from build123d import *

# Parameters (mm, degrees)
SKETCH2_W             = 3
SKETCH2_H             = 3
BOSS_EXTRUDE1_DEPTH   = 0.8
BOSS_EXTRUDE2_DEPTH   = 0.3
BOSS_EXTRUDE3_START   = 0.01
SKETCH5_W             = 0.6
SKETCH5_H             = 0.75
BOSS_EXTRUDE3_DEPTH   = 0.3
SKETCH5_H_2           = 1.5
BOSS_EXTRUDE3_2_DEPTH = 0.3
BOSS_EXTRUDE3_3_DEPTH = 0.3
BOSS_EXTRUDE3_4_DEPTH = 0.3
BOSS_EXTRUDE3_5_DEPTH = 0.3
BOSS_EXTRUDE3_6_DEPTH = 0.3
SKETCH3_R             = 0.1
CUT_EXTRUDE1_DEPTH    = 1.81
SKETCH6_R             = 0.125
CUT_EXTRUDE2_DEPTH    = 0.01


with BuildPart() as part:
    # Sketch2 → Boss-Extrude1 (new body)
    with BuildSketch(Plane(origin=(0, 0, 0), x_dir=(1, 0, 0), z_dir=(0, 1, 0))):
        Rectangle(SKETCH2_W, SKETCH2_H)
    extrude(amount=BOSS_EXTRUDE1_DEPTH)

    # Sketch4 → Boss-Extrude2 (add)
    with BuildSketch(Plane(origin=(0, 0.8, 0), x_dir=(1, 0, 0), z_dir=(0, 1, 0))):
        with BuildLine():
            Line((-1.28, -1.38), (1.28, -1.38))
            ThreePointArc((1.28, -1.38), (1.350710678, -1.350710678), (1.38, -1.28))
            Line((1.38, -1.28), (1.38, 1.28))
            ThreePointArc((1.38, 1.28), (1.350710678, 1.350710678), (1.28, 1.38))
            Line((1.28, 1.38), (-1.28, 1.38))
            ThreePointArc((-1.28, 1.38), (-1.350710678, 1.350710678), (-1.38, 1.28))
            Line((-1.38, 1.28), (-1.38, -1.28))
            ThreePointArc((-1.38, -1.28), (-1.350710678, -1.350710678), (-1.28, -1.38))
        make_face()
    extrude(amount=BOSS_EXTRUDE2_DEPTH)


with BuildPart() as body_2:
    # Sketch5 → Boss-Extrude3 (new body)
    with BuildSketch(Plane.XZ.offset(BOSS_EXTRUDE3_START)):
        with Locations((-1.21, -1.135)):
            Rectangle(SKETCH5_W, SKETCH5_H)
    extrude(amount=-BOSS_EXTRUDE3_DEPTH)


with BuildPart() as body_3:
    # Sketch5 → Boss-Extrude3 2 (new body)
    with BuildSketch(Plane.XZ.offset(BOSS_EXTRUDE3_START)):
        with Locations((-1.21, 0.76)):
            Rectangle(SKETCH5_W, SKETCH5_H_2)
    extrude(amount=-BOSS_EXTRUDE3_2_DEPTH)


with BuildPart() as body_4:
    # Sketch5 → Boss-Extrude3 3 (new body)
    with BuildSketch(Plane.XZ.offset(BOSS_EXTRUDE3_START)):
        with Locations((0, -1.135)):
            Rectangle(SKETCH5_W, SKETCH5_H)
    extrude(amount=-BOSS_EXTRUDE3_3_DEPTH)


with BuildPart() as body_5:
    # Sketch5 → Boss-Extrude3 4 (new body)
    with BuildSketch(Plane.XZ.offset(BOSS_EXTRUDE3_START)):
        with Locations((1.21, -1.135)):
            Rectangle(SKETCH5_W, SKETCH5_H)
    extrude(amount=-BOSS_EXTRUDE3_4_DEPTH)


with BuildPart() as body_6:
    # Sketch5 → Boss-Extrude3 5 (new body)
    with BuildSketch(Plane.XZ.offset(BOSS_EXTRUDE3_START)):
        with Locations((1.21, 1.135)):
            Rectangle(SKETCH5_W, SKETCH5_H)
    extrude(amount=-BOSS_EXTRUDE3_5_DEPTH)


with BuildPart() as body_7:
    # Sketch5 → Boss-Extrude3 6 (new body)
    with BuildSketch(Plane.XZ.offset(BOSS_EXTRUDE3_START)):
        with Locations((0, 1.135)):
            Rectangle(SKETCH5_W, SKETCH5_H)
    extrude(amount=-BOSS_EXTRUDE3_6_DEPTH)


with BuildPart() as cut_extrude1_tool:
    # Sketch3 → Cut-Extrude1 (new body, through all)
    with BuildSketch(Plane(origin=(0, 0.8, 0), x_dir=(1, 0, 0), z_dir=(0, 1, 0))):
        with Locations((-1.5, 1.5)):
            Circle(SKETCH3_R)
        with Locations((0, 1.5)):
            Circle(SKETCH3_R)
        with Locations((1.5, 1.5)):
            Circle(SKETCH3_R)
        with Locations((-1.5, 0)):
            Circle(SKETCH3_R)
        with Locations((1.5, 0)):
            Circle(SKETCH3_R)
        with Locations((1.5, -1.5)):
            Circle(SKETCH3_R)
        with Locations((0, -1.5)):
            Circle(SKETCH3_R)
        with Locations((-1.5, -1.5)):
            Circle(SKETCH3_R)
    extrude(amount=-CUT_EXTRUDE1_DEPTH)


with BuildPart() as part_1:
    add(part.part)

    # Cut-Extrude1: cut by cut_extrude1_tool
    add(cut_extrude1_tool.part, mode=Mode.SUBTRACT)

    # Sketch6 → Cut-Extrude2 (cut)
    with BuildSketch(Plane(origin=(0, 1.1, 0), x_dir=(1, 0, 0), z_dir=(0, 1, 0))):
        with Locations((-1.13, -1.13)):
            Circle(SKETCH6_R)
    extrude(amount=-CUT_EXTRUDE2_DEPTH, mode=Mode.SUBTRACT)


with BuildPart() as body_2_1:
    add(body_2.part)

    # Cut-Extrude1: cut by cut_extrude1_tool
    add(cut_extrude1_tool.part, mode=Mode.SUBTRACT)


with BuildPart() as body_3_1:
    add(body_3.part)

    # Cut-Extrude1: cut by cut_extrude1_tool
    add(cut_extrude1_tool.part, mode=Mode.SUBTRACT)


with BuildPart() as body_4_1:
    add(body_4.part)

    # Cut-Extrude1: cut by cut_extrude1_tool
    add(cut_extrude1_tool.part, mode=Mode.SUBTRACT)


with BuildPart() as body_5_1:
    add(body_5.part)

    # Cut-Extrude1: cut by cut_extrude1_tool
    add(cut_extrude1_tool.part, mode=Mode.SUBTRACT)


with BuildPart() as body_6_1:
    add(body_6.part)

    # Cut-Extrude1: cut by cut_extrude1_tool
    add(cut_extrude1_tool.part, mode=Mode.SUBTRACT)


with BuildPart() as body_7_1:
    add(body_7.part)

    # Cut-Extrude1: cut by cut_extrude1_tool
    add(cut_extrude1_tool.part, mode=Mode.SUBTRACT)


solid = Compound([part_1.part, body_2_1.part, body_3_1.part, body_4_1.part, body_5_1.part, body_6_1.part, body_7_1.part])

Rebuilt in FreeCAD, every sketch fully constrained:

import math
import FreeCAD as App
import Part
import Sketcher

V = App.Vector
Q = App.Units.Quantity

doc = App.newDocument("Part")
body = doc.addObject("PartDesign::Body", "Body")

sketch1 = body.newObject("Sketcher::SketchObject", "Sketch")
sketch1.AttachmentSupport = (doc.getObject("XZ_Plane"), [""])
sketch1.MapMode = "FlatFace"
sketch1.addGeometry(Part.LineSegment(V(-1.5, -1.5, 0), V(-1.5, 1.5, 0)), False)
sketch1.addGeometry(Part.LineSegment(V(-1.5, 1.5, 0), V(1.5, 1.5, 0)), False)
sketch1.addGeometry(Part.LineSegment(V(1.5, 1.5, 0), V(1.5, -1.5, 0)), False)
sketch1.addGeometry(Part.LineSegment(V(1.5, -1.5, 0), V(-1.5, -1.5, 0)), False)
sketch1.addConstraint(Sketcher.Constraint("Coincident", 0, 2, 1, 1))
sketch1.addConstraint(Sketcher.Constraint("Coincident", 1, 2, 2, 1))
sketch1.addConstraint(Sketcher.Constraint("Coincident", 2, 2, 3, 1))
sketch1.addConstraint(Sketcher.Constraint("Coincident", 3, 2, 0, 1))
sketch1.addConstraint(Sketcher.Constraint("Vertical", 0))
sketch1.addConstraint(Sketcher.Constraint("Horizontal", 1))
sketch1.addConstraint(Sketcher.Constraint("Vertical", 2))
sketch1.addConstraint(Sketcher.Constraint("Horizontal", 3))
sketch1.addConstraint(Sketcher.Constraint("Symmetric", 0, 2, 2, 2, -1, 1))
sketch1.addConstraint(Sketcher.Constraint("Equal", 3, 0))
sketch1.addConstraint(Sketcher.Constraint("DistanceX", 1, 1, 1, 2, Q("3 mm")))
pad1 = body.newObject("PartDesign::Pad", "Pad")
pad1.Profile = sketch1
pad1.Length = 0.8
pad1.Reversed = True

sketch2 = body.newObject("Sketcher::SketchObject", "Sketch001")
sketch2.AttachmentSupport = (doc.getObject("XZ_Plane"), [""])
sketch2.MapMode = "FlatFace"
sketch2.AttachmentOffset = App.Placement(V(0, 0, -0.8), App.Rotation())
sketch2.addGeometry(Part.LineSegment(V(-1.28, 1.38, 0), V(1.28, 1.38, 0)), False)
sketch2.addGeometry(Part.ArcOfCircle(Part.Circle(V(1.28, 1.28, 0), V(0, 0, 1), 0.1), math.radians(0), math.radians(90)), False)
sketch2.addGeometry(Part.LineSegment(V(1.38, 1.28, 0), V(1.38, -1.28, 0)), False)
sketch2.addGeometry(Part.ArcOfCircle(Part.Circle(V(1.28, -1.28, 0), V(0, 0, 1), 0.1), math.radians(-90), math.radians(0)), False)
sketch2.addGeometry(Part.LineSegment(V(1.28, -1.38, 0), V(-1.28, -1.38, 0)), False)
sketch2.addGeometry(Part.ArcOfCircle(Part.Circle(V(-1.28, -1.28, 0), V(0, 0, 1), 0.1), math.radians(180), math.radians(270)), False)
sketch2.addGeometry(Part.LineSegment(V(-1.38, -1.28, 0), V(-1.38, 1.28, 0)), False)
sketch2.addGeometry(Part.ArcOfCircle(Part.Circle(V(-1.28, 1.28, 0), V(0, 0, 1), 0.1), math.radians(90), math.radians(180)), False)
sketch2.addConstraint(Sketcher.Constraint("Tangent", 0, 2, 1, 2))
sketch2.addConstraint(Sketcher.Constraint("Tangent", 1, 1, 2, 1))
sketch2.addConstraint(Sketcher.Constraint("Tangent", 2, 2, 3, 2))
sketch2.addConstraint(Sketcher.Constraint("Tangent", 3, 1, 4, 1))
sketch2.addConstraint(Sketcher.Constraint("Tangent", 4, 2, 5, 2))
sketch2.addConstraint(Sketcher.Constraint("Tangent", 5, 1, 6, 1))
sketch2.addConstraint(Sketcher.Constraint("Tangent", 6, 2, 7, 2))
sketch2.addConstraint(Sketcher.Constraint("Tangent", 7, 1, 0, 1))
sketch2.addConstraint(Sketcher.Constraint("Horizontal", 0))
sketch2.addConstraint(Sketcher.Constraint("Vertical", 2))
sketch2.addConstraint(Sketcher.Constraint("Horizontal", 4))
sketch2.addConstraint(Sketcher.Constraint("Vertical", 6))
sketch2.addConstraint(Sketcher.Constraint("Equal", 1, 3))
sketch2.addConstraint(Sketcher.Constraint("Equal", 3, 5))
sketch2.addConstraint(Sketcher.Constraint("Equal", 5, 7))
sketch2.addConstraint(Sketcher.Constraint("Symmetric", 1, 3, 5, 3, -1, 1))
sketch2.addConstraint(Sketcher.Constraint("Equal", 4, 2))
sketch2.addConstraint(Sketcher.Constraint("Radius", 1, Q("0.1 mm")))
sketch2.addConstraint(Sketcher.Constraint("DistanceX", 0, 1, 0, 2, Q("2.56 mm")))
pad2 = body.newObject("PartDesign::Pad", "Pad001")
pad2.Profile = sketch2
pad2.Length = 0.3
pad2.Reversed = True
body2 = doc.addObject("PartDesign::Body", "Body001")

sketch3 = body2.newObject("Sketcher::SketchObject", "Sketch002")
sketch3.AttachmentSupport = (doc.getObject("XZ_Plane001"), [""])
sketch3.MapMode = "FlatFace"
sketch3.AttachmentOffset = App.Placement(V(0, 0, 0.01), App.Rotation())
sketch3.addGeometry(Part.LineSegment(V(-1.5, -0.8, 0), V(-1.5, -1.5, 0)), False)
sketch3.addGeometry(Part.LineSegment(V(-1.5, -1.5, 0), V(-0.9, -1.5, 0)), False)
sketch3.addGeometry(Part.LineSegment(V(-0.9, -1.5, 0), V(-0.9, -0.8, 0)), False)
sketch3.addGeometry(Part.LineSegment(V(-0.9, -0.8, 0), V(-1.5, -0.8, 0)), False)
sketch3.addConstraint(Sketcher.Constraint("Coincident", 0, 2, 1, 1))
sketch3.addConstraint(Sketcher.Constraint("Coincident", 1, 2, 2, 1))
sketch3.addConstraint(Sketcher.Constraint("Coincident", 2, 2, 3, 1))
sketch3.addConstraint(Sketcher.Constraint("Coincident", 3, 2, 0, 1))
sketch3.addConstraint(Sketcher.Constraint("Vertical", 0))
sketch3.addConstraint(Sketcher.Constraint("Horizontal", 1))
sketch3.addConstraint(Sketcher.Constraint("Vertical", 2))
sketch3.addConstraint(Sketcher.Constraint("Horizontal", 3))
sketch3.addConstraint(Sketcher.Constraint("DistanceX", 1, 1, 1, 2, Q("0.6 mm")))
sketch3.addConstraint(Sketcher.Constraint("DistanceY", 0, 2, 0, 1, Q("0.75 mm")))
sketch3.addConstraint(Sketcher.Constraint("DistanceX", 0, 2, -1, 1, Q("1.51 mm")))
sketch3.addConstraint(Sketcher.Constraint("DistanceY", 0, 2, -1, 1, Q("1.51 mm")))
pad3 = body2.newObject("PartDesign::Pad", "Pad002")
pad3.Profile = sketch3
pad3.Length = 0.3
pad3.Reversed = True
body3 = doc.addObject("PartDesign::Body", "Body002")

sketch4 = body3.newObject("Sketcher::SketchObject", "Sketch003")
sketch4.AttachmentSupport = (doc.getObject("XZ_Plane002"), [""])
sketch4.MapMode = "FlatFace"
sketch4.AttachmentOffset = App.Placement(V(0, 0, 0.01), App.Rotation())
sketch4.addGeometry(Part.LineSegment(V(-1.5, 1.5, 0), V(-1.5, 0, 0)), False)
sketch4.addGeometry(Part.LineSegment(V(-1.5, 0, 0), V(-0.9, 0, 0)), False)
sketch4.addGeometry(Part.LineSegment(V(-0.9, 0, 0), V(-0.9, 1.5, 0)), False)
sketch4.addGeometry(Part.LineSegment(V(-0.9, 1.5, 0), V(-1.5, 1.5, 0)), False)
sketch4.addConstraint(Sketcher.Constraint("Coincident", 0, 2, 1, 1))
sketch4.addConstraint(Sketcher.Constraint("Coincident", 1, 2, 2, 1))
sketch4.addConstraint(Sketcher.Constraint("Coincident", 2, 2, 3, 1))
sketch4.addConstraint(Sketcher.Constraint("Coincident", 3, 2, 0, 1))
sketch4.addConstraint(Sketcher.Constraint("Vertical", 0))
sketch4.addConstraint(Sketcher.Constraint("Horizontal", 1))
sketch4.addConstraint(Sketcher.Constraint("Vertical", 2))
sketch4.addConstraint(Sketcher.Constraint("Horizontal", 3))
sketch4.addConstraint(Sketcher.Constraint("DistanceX", 1, 1, 1, 2, Q("0.6 mm")))
sketch4.addConstraint(Sketcher.Constraint("DistanceY", 0, 2, 0, 1, Q("1.5 mm")))
sketch4.addConstraint(Sketcher.Constraint("DistanceX", 0, 2, -1, 1, Q("1.51 mm")))
sketch4.addConstraint(Sketcher.Constraint("DistanceY", -1, 1, 0, 2, Q("0.01 mm")))
pad4 = body3.newObject("PartDesign::Pad", "Pad003")
pad4.Profile = sketch4
pad4.Length = 0.3
pad4.Reversed = True
body4 = doc.addObject("PartDesign::Body", "Body003")

sketch5 = body4.newObject("Sketcher::SketchObject", "Sketch004")
sketch5.AttachmentSupport = (doc.getObject("XZ_Plane003"), [""])
sketch5.MapMode = "FlatFace"
sketch5.AttachmentOffset = App.Placement(V(0, 0, 0.01), App.Rotation())
sketch5.addGeometry(Part.LineSegment(V(-0.3, -0.8, 0), V(-0.3, -1.5, 0)), False)
sketch5.addGeometry(Part.LineSegment(V(-0.3, -1.5, 0), V(0.3, -1.5, 0)), False)
sketch5.addGeometry(Part.LineSegment(V(0.3, -1.5, 0), V(0.3, -0.8, 0)), False)
sketch5.addGeometry(Part.LineSegment(V(0.3, -0.8, 0), V(-0.3, -0.8, 0)), False)
sketch5.addConstraint(Sketcher.Constraint("Coincident", 0, 2, 1, 1))
sketch5.addConstraint(Sketcher.Constraint("Coincident", 1, 2, 2, 1))
sketch5.addConstraint(Sketcher.Constraint("Coincident", 2, 2, 3, 1))
sketch5.addConstraint(Sketcher.Constraint("Coincident", 3, 2, 0, 1))
sketch5.addConstraint(Sketcher.Constraint("Vertical", 0))
sketch5.addConstraint(Sketcher.Constraint("Horizontal", 1))
sketch5.addConstraint(Sketcher.Constraint("Vertical", 2))
sketch5.addConstraint(Sketcher.Constraint("Horizontal", 3))
sketch5.addConstraint(Sketcher.Constraint("DistanceX", 1, 1, 1, 2, Q("0.6 mm")))
sketch5.addConstraint(Sketcher.Constraint("DistanceY", 0, 2, 0, 1, Q("0.75 mm")))
sketch5.addConstraint(Sketcher.Constraint("DistanceX", 0, 2, -1, 1, Q("0.3 mm")))
sketch5.addConstraint(Sketcher.Constraint("DistanceY", 0, 2, -1, 1, Q("1.51 mm")))
pad5 = body4.newObject("PartDesign::Pad", "Pad004")
pad5.Profile = sketch5
pad5.Length = 0.3
pad5.Reversed = True
body5 = doc.addObject("PartDesign::Body", "Body004")

sketch6 = body5.newObject("Sketcher::SketchObject", "Sketch005")
sketch6.AttachmentSupport = (doc.getObject("XZ_Plane004"), [""])
sketch6.MapMode = "FlatFace"
sketch6.AttachmentOffset = App.Placement(V(0, 0, 0.01), App.Rotation())
sketch6.addGeometry(Part.LineSegment(V(0.9, -0.8, 0), V(0.9, -1.5, 0)), False)
sketch6.addGeometry(Part.LineSegment(V(0.9, -1.5, 0), V(1.5, -1.5, 0)), False)
sketch6.addGeometry(Part.LineSegment(V(1.5, -1.5, 0), V(1.5, -0.8, 0)), False)
sketch6.addGeometry(Part.LineSegment(V(1.5, -0.8, 0), V(0.9, -0.8, 0)), False)
sketch6.addConstraint(Sketcher.Constraint("Coincident", 0, 2, 1, 1))
sketch6.addConstraint(Sketcher.Constraint("Coincident", 1, 2, 2, 1))
sketch6.addConstraint(Sketcher.Constraint("Coincident", 2, 2, 3, 1))
sketch6.addConstraint(Sketcher.Constraint("Coincident", 3, 2, 0, 1))
sketch6.addConstraint(Sketcher.Constraint("Vertical", 0))
sketch6.addConstraint(Sketcher.Constraint("Horizontal", 1))
sketch6.addConstraint(Sketcher.Constraint("Vertical", 2))
sketch6.addConstraint(Sketcher.Constraint("Horizontal", 3))
sketch6.addConstraint(Sketcher.Constraint("DistanceX", 1, 1, 1, 2, Q("0.6 mm")))
sketch6.addConstraint(Sketcher.Constraint("DistanceY", 0, 2, 0, 1, Q("0.75 mm")))
sketch6.addConstraint(Sketcher.Constraint("DistanceX", -1, 1, 0, 2, Q("0.91 mm")))
sketch6.addConstraint(Sketcher.Constraint("DistanceY", 0, 2, -1, 1, Q("1.51 mm")))
pad6 = body5.newObject("PartDesign::Pad", "Pad005")
pad6.Profile = sketch6
pad6.Length = 0.3
pad6.Reversed = True
body6 = doc.addObject("PartDesign::Body", "Body005")

sketch7 = body6.newObject("Sketcher::SketchObject", "Sketch006")
sketch7.AttachmentSupport = (doc.getObject("XZ_Plane005"), [""])
sketch7.MapMode = "FlatFace"
sketch7.AttachmentOffset = App.Placement(V(0, 0, 0.01), App.Rotation())
sketch7.addGeometry(Part.LineSegment(V(0.9, 1.5, 0), V(0.9, 0.8, 0)), False)
sketch7.addGeometry(Part.LineSegment(V(0.9, 0.8, 0), V(1.5, 0.8, 0)), False)
sketch7.addGeometry(Part.LineSegment(V(1.5, 0.8, 0), V(1.5, 1.5, 0)), False)
sketch7.addGeometry(Part.LineSegment(V(1.5, 1.5, 0), V(0.9, 1.5, 0)), False)
sketch7.addConstraint(Sketcher.Constraint("Coincident", 0, 2, 1, 1))
sketch7.addConstraint(Sketcher.Constraint("Coincident", 1, 2, 2, 1))
sketch7.addConstraint(Sketcher.Constraint("Coincident", 2, 2, 3, 1))
sketch7.addConstraint(Sketcher.Constraint("Coincident", 3, 2, 0, 1))
sketch7.addConstraint(Sketcher.Constraint("Vertical", 0))
sketch7.addConstraint(Sketcher.Constraint("Horizontal", 1))
sketch7.addConstraint(Sketcher.Constraint("Vertical", 2))
sketch7.addConstraint(Sketcher.Constraint("Horizontal", 3))
sketch7.addConstraint(Sketcher.Constraint("DistanceX", 1, 1, 1, 2, Q("0.6 mm")))
sketch7.addConstraint(Sketcher.Constraint("DistanceY", 0, 2, 0, 1, Q("0.75 mm")))
sketch7.addConstraint(Sketcher.Constraint("DistanceX", -1, 1, 0, 2, Q("0.91 mm")))
sketch7.addConstraint(Sketcher.Constraint("DistanceY", -1, 1, 0, 2, Q("0.76 mm")))
pad7 = body6.newObject("PartDesign::Pad", "Pad006")
pad7.Profile = sketch7
pad7.Length = 0.3
pad7.Reversed = True
body7 = doc.addObject("PartDesign::Body", "Body006")

sketch8 = body7.newObject("Sketcher::SketchObject", "Sketch007")
sketch8.AttachmentSupport = (doc.getObject("XZ_Plane006"), [""])
sketch8.MapMode = "FlatFace"
sketch8.AttachmentOffset = App.Placement(V(0, 0, 0.01), App.Rotation())
sketch8.addGeometry(Part.LineSegment(V(-0.3, 1.5, 0), V(-0.3, 0.8, 0)), False)
sketch8.addGeometry(Part.LineSegment(V(-0.3, 0.8, 0), V(0.3, 0.8, 0)), False)
sketch8.addGeometry(Part.LineSegment(V(0.3, 0.8, 0), V(0.3, 1.5, 0)), False)
sketch8.addGeometry(Part.LineSegment(V(0.3, 1.5, 0), V(-0.3, 1.5, 0)), False)
sketch8.addConstraint(Sketcher.Constraint("Coincident", 0, 2, 1, 1))
sketch8.addConstraint(Sketcher.Constraint("Coincident", 1, 2, 2, 1))
sketch8.addConstraint(Sketcher.Constraint("Coincident", 2, 2, 3, 1))
sketch8.addConstraint(Sketcher.Constraint("Coincident", 3, 2, 0, 1))
sketch8.addConstraint(Sketcher.Constraint("Vertical", 0))
sketch8.addConstraint(Sketcher.Constraint("Horizontal", 1))
sketch8.addConstraint(Sketcher.Constraint("Vertical", 2))
sketch8.addConstraint(Sketcher.Constraint("Horizontal", 3))
sketch8.addConstraint(Sketcher.Constraint("DistanceX", 1, 1, 1, 2, Q("0.6 mm")))
sketch8.addConstraint(Sketcher.Constraint("DistanceY", 0, 2, 0, 1, Q("0.75 mm")))
sketch8.addConstraint(Sketcher.Constraint("DistanceX", 0, 2, -1, 1, Q("0.3 mm")))
sketch8.addConstraint(Sketcher.Constraint("DistanceY", -1, 1, 0, 2, Q("0.76 mm")))
pad8 = body7.newObject("PartDesign::Pad", "Pad007")
pad8.Profile = sketch8
pad8.Length = 0.3
pad8.Reversed = True
body8 = doc.addObject("PartDesign::Body", "Body007")
body8.AllowCompound = True

sketch9 = body8.newObject("Sketcher::SketchObject", "Sketch008")
sketch9.AttachmentSupport = (doc.getObject("XZ_Plane007"), [""])
sketch9.MapMode = "FlatFace"
sketch9.AttachmentOffset = App.Placement(V(0, 0, -0.8), App.Rotation())
sketch9.addGeometry(Part.Circle(V(-1.5, -1.5, 0), V(0, 0, 1), 0.1), False)
sketch9.addGeometry(Part.Circle(V(0, -1.5, 0), V(0, 0, 1), 0.1), False)
sketch9.addGeometry(Part.Circle(V(1.5, -1.5, 0), V(0, 0, 1), 0.1), False)
sketch9.addGeometry(Part.Circle(V(-1.5, 0, 0), V(0, 0, 1), 0.1), False)
sketch9.addGeometry(Part.Circle(V(1.5, 0, 0), V(0, 0, 1), 0.1), False)
sketch9.addGeometry(Part.Circle(V(1.5, 1.5, 0), V(0, 0, 1), 0.1), False)
sketch9.addGeometry(Part.Circle(V(0, 1.5, 0), V(0, 0, 1), 0.1), False)
sketch9.addGeometry(Part.Circle(V(-1.5, 1.5, 0), V(0, 0, 1), 0.1), False)
sketch9.addConstraint(Sketcher.Constraint("Equal", 0, 1))
sketch9.addConstraint(Sketcher.Constraint("Equal", 1, 2))
sketch9.addConstraint(Sketcher.Constraint("Equal", 2, 3))
sketch9.addConstraint(Sketcher.Constraint("Equal", 3, 4))
sketch9.addConstraint(Sketcher.Constraint("Equal", 4, 5))
sketch9.addConstraint(Sketcher.Constraint("Equal", 5, 6))
sketch9.addConstraint(Sketcher.Constraint("Equal", 6, 7))
sketch9.addConstraint(Sketcher.Constraint("Symmetric", 3, 3, 4, 3, -1, 1))
sketch9.addConstraint(Sketcher.Constraint("Symmetric", 0, 3, 5, 3, -1, 1))
sketch9.addConstraint(Sketcher.Constraint("Symmetric", 1, 3, 6, 3, -1, 1))
sketch9.addConstraint(Sketcher.Constraint("Symmetric", 2, 3, 7, 3, -1, 1))
sketch9.addConstraint(Sketcher.Constraint("Symmetric", 0, 3, 2, 3, -2))
sketch9.addConstraint(Sketcher.Constraint("PointOnObject", 1, 3, -2))
sketch9.addConstraint(Sketcher.Constraint("PointOnObject", 3, 3, -1))
sketch9.addConstraint(Sketcher.Constraint("Horizontal", 0, 3, 1, 3))
sketch9.addConstraint(Sketcher.Constraint("Vertical", 0, 3, 3, 3))
sketch9.addConstraint(Sketcher.Constraint("Diameter", 0, Q("0.2 mm")))
sketch9.addConstraint(Sketcher.Constraint("DistanceX", 0, 3, 2, 3, Q("3 mm")))
sketch9.addConstraint(Sketcher.Constraint("DistanceY", 2, 3, 5, 3, Q("3 mm")))
pad9 = body8.newObject("PartDesign::Pad", "Pad008")
pad9.Profile = sketch9
pad9.Length = 1.81
doc.recompute()

body9 = doc.addObject("PartDesign::Body", "Body008")
body9.BaseFeature = body8
boolean = body.newObject("PartDesign::Boolean", "Boolean")
boolean.Type = "Cut"
boolean.addObjects([body9])
doc.recompute()

sketch10 = body.newObject("Sketcher::SketchObject", "Sketch009")
sketch10.AttachmentSupport = (doc.getObject("XZ_Plane"), [""])
sketch10.MapMode = "FlatFace"
sketch10.AttachmentOffset = App.Placement(V(0, 0, -1.1), App.Rotation())
sketch10.addGeometry(Part.Circle(V(-1.13, 1.13, 0), V(0, 0, 1), 0.12), False)
sketch10.addConstraint(Sketcher.Constraint("Diameter", 0, Q("0.25 mm")))
sketch10.addConstraint(Sketcher.Constraint("DistanceX", 0, 3, -1, 1, Q("1.13 mm")))
sketch10.addConstraint(Sketcher.Constraint("DistanceY", -1, 1, 0, 3, Q("1.13 mm")))
pocket1 = body.newObject("PartDesign::Pocket", "Pocket")
pocket1.Profile = sketch10
pocket1.Length = 0.01
pocket1.Reversed = True
doc.recompute()

body10 = doc.addObject("PartDesign::Body", "Body009")
body10.BaseFeature = body8
boolean2 = body2.newObject("PartDesign::Boolean", "Boolean001")
boolean2.Type = "Cut"
boolean2.addObjects([body10])
doc.recompute()

body11 = doc.addObject("PartDesign::Body", "Body010")
body11.BaseFeature = body8
boolean3 = body3.newObject("PartDesign::Boolean", "Boolean002")
boolean3.Type = "Cut"
boolean3.addObjects([body11])
doc.recompute()

body12 = doc.addObject("PartDesign::Body", "Body011")
body12.BaseFeature = body8
boolean4 = body4.newObject("PartDesign::Boolean", "Boolean003")
boolean4.Type = "Cut"
boolean4.addObjects([body12])
doc.recompute()

body13 = doc.addObject("PartDesign::Body", "Body012")
body13.BaseFeature = body8
boolean5 = body5.newObject("PartDesign::Boolean", "Boolean004")
boolean5.Type = "Cut"
boolean5.addObjects([body13])
doc.recompute()

body14 = doc.addObject("PartDesign::Body", "Body013")
body14.BaseFeature = body8
boolean6 = body6.newObject("PartDesign::Boolean", "Boolean005")
boolean6.Type = "Cut"
boolean6.addObjects([body14])
doc.recompute()

boolean7 = body7.newObject("PartDesign::Boolean", "Boolean006")
boolean7.Type = "Cut"
boolean7.addObjects([body8])

doc.recompute()
